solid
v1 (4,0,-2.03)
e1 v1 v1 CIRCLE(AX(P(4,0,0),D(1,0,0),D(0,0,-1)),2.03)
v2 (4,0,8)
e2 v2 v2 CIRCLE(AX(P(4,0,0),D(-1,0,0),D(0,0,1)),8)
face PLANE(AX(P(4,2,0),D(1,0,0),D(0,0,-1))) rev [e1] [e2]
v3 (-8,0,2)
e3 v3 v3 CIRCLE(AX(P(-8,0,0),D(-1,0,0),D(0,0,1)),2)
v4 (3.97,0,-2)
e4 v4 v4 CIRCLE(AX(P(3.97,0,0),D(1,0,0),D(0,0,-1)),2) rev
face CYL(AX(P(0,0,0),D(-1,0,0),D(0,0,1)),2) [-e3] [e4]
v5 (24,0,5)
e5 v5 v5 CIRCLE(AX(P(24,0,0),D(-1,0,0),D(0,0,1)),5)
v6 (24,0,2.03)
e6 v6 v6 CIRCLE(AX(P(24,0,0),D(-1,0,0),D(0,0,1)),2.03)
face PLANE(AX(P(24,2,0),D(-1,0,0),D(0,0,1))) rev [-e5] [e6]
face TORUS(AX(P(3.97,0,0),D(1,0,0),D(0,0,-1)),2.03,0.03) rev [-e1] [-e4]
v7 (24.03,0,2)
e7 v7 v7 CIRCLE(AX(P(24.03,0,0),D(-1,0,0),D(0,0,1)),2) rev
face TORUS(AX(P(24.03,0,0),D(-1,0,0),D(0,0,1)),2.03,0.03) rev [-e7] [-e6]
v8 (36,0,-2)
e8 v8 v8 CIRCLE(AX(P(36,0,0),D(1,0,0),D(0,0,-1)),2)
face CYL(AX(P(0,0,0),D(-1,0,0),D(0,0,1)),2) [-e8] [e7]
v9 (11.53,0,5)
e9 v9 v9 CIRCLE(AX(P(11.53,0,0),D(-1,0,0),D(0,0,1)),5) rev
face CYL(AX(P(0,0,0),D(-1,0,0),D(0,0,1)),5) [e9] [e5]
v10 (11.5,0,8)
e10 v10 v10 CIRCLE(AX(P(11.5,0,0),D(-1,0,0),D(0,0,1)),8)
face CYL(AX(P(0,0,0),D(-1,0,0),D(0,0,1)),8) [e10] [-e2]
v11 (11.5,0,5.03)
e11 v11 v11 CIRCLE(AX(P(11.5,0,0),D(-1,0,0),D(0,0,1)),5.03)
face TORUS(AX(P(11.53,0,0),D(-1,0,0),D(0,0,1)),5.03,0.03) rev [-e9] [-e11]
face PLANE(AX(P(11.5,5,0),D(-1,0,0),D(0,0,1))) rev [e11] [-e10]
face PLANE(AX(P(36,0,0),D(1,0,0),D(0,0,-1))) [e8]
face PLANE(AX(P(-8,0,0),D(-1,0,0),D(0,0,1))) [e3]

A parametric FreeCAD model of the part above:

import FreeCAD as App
import Part
import Sketcher

V = App.Vector


def edges_at(feature, points):
    """Names of the edges that pass closest to the given points."""
    edges = feature.Shape.Edges
    near = lambda p: min(range(len(edges)), key=lambda i: edges[i].distToShape(Part.Vertex(*p))[0])
    return sorted({f"Edge{near(p) + 1}" for p in points})

doc = App.newDocument("Part")
params = doc.addObject("Spreadsheet::Sheet", "Params")
for row, (alias, value) in enumerate([
    ("sketch1_width", "28 mm"),
    ("sketch1_width2", "4 mm"),
    ("sketch1_height", "2 mm"),
    ("sketch1_height2", "3 mm"),
    ("sketch1_width3", "12.5 mm"),
    ("revolution_angle", "360 deg"),
    ("sketch2_diameter", "4 mm"),
    ("pad1_length", "8 mm"),
    ("sketch3_diameter", "4 mm"),
    ("pad2_length", "8 mm"),
    ("fillet_radius", "0.03 mm"),
    ("fillet2_radius", "0.03 mm"),
], start=1):
    params.set(f"A{row}", alias)
    params.set(f"B{row}", "=" + value)
    params.setAlias(f"B{row}", alias)

body = doc.addObject("PartDesign::Body", "Body")

sketch1 = body.newObject("Sketcher::SketchObject", "Sketch")
sketch1.AttachmentSupport = (doc.getObject("XY_Plane"), [""])
sketch1.MapMode = "FlatFace"
sketch1.addGeometry([
    Part.LineSegment(V(0, 2, 0), V(0, 0, 0)),
    Part.LineSegment(V(0, 0, 0), V(28, 0, 0)),
    Part.LineSegment(V(28, 0, 0), V(28, 2, 0)),
    Part.LineSegment(V(28, 2, 0), V(24, 2, 0)),
    Part.LineSegment(V(24, 2, 0), V(24, 5, 0)),
    Part.LineSegment(V(24, 5, 0), V(11.5, 5, 0)),
    Part.LineSegment(V(11.5, 5, 0), V(11.5, 8, 0)),
    Part.LineSegment(V(11.5, 8, 0), V(4, 8, 0)),
    Part.LineSegment(V(4, 8, 0), V(4, 2, 0)),
    Part.LineSegment(V(4, 2, 0), V(0, 2, 0)),
], False)
sketch1.addConstraint([
    Sketcher.Constraint("Coincident", 0, 2, 1, 1),
    Sketcher.Constraint("Coincident", 1, 2, 2, 1),
    Sketcher.Constraint("Coincident", 2, 2, 3, 1),
    Sketcher.Constraint("Coincident", 3, 2, 4, 1),
    Sketcher.Constraint("Coincident", 4, 2, 5, 1),
    Sketcher.Constraint("Coincident", 5, 2, 6, 1),
    Sketcher.Constraint("Coincident", 6, 2, 7, 1),
    Sketcher.Constraint("Coincident", 7, 2, 8, 1),
    Sketcher.Constraint("Coincident", 8, 2, 9, 1),
    Sketcher.Constraint("Coincident", 9, 2, 0, 1),
    Sketcher.Constraint("Vertical", 0),
    Sketcher.Constraint("Horizontal", 1),
    Sketcher.Constraint("Vertical", 2),
    Sketcher.Constraint("Horizontal", 3),
    Sketcher.Constraint("Vertical", 4),
    Sketcher.Constraint("Horizontal", 5),
    Sketcher.Constraint("Vertical", 6),
    Sketcher.Constraint("Horizontal", 7),
    Sketcher.Constraint("Vertical", 8),
    Sketcher.Constraint("Horizontal", 9),
    Sketcher.Constraint("Coincident", 0, 2, -1, 1),
    Sketcher.Constraint("Horizontal", 3, 2, 8, 2),
    Sketcher.Constraint("Equal", 3, 9),
    Sketcher.Constraint("Equal", 4, 6),
    Sketcher.Constraint("DistanceX", 1, 1, 1, 2, 28.0),
    Sketcher.Constraint("DistanceX", 3, 2, 3, 1, 4.0),
    Sketcher.Constraint("DistanceY", 0, 2, 0, 1, 2.0),
    Sketcher.Constraint("DistanceY", 4, 1, 4, 2, 3.0),
    Sketcher.Constraint("DistanceX", 5, 2, 5, 1, 12.5),
])
sketch1.setExpression("Constraints[24]", "Params.sketch1_width")
sketch1.setExpression("Constraints[25]", "Params.sketch1_width2")
sketch1.setExpression("Constraints[26]", "Params.sketch1_height")
sketch1.setExpression("Constraints[27]", "Params.sketch1_height2")
sketch1.setExpression("Constraints[28]", "Params.sketch1_width3")
revolution = body.newObject("PartDesign::Revolution", "Revolution")
revolution.Profile = sketch1
revolution.ReferenceAxis = (sketch1, ["H_Axis"])
revolution.setExpression("Angle", "Params.revolution_angle")

sketch2 = body.newObject("Sketcher::SketchObject", "Sketch001")
sketch2.AttachmentSupport = (doc.getObject("YZ_Plane"), [""])
sketch2.MapMode = "FlatFace"
sketch2.addGeometry(Part.Circle(V(0, 0, 0), V(0, 0, 1), 2), False)
sketch2.addConstraint([
    Sketcher.Constraint("Coincident", 0, 3, -1, 1),
    Sketcher.Constraint("Diameter", 0, 4.0),
])
sketch2.setExpression("Constraints[1]", "Params.sketch2_diameter")
pad1 = body.newObject("PartDesign::Pad", "Pad")
pad1.Profile = sketch2
pad1.setExpression("Length", "Params.pad1_length")
pad1.Reversed = True

sketch3 = body.newObject("Sketcher::SketchObject", "Sketch002")
sketch3.AttachmentSupport = (doc.getObject("YZ_Plane"), [""])
sketch3.MapMode = "FlatFace"
sketch3.AttachmentOffset = App.Placement(V(0, 0, 28), App.Rotation())
sketch3.addGeometry(Part.Circle(V(0, 0, 0), V(0, 0, 1), 2), False)
sketch3.addConstraint([
    Sketcher.Constraint("Coincident", 0, 3, -1, 1),
    Sketcher.Constraint("Diameter", 0, 4.0),
])
sketch3.setExpression("Constraints[1]", "Params.sketch3_diameter")
pad2 = body.newObject("PartDesign::Pad", "Pad001")
pad2.Profile = sketch3
pad2.setExpression("Length", "Params.pad2_length")
doc.recompute()

fillet = body.newObject("PartDesign::Fillet", "Fillet")
fillet.Base = (pad2, edges_at(pad2, [(4, 0, -2)]))
fillet.setExpression("Radius", "Params.fillet_radius")
doc.recompute()

fillet2 = body.newObject("PartDesign::Fillet", "Fillet001")
fillet2.Base = (fillet, edges_at(fillet, [(11.5, 0, -5), (24, 0, -2)]))
fillet2.setExpression("Radius", "Params.fillet2_radius")

doc.recompute()
